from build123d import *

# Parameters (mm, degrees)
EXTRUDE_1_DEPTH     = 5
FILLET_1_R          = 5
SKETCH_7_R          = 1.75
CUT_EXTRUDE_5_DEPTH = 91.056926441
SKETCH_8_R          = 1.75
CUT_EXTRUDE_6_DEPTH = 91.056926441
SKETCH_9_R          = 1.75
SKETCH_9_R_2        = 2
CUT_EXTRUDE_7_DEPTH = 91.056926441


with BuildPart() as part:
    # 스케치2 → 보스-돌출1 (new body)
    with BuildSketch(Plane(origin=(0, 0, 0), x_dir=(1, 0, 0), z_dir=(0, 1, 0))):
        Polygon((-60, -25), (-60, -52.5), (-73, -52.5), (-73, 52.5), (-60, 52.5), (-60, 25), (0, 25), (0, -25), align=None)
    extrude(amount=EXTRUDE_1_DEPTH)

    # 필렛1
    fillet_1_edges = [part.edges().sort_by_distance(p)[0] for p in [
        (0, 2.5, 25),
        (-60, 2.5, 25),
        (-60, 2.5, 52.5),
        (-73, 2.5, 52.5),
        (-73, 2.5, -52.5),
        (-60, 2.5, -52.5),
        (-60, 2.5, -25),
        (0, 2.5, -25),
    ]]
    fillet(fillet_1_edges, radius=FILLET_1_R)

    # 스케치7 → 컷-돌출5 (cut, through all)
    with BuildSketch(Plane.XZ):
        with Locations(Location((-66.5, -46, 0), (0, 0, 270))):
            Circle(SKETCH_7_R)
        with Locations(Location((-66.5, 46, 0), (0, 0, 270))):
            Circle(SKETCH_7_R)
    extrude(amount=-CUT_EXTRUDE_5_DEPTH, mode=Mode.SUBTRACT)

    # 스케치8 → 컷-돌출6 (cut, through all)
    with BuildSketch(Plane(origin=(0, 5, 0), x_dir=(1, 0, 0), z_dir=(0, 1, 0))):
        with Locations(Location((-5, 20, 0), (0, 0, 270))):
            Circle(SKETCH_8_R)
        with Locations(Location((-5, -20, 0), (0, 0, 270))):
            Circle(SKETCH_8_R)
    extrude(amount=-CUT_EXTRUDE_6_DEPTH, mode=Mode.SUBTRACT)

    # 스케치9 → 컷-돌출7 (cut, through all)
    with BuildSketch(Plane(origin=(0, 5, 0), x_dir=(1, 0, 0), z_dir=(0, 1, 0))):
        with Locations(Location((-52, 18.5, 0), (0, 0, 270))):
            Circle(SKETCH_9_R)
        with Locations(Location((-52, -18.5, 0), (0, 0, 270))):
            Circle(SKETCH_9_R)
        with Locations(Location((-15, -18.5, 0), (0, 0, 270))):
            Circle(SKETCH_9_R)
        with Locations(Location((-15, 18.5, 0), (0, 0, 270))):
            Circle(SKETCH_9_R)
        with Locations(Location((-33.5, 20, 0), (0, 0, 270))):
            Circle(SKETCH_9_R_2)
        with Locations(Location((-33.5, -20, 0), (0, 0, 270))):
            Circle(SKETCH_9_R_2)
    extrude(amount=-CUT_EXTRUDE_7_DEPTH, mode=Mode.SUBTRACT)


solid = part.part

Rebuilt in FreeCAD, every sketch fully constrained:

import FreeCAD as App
import Part
import Sketcher
from FreeCAD import Vector
Q = App.Units.Quantity


def edges_at(feature, points):
    """Names of the edges that pass closest to the given points."""
    edges = feature.Shape.Edges
    near = lambda p: min(range(len(edges)), key=lambda i: edges[i].distToShape(Part.Vertex(*p))[0])
    return sorted({f"Edge{near(p) + 1}" for p in points})


def add_polygon(sketch, points):
    """Adds a closed chain of lines whose ends are joined by coincident constraints."""
    first, n = sketch.GeometryCount, len(points)
    for a, b in zip(points, points[1:] + points[:1]):
        sketch.addGeometry(Part.LineSegment(App.Vector(*a, 0), App.Vector(*b, 0)), False)
    for i in range(n):
        sketch.addConstraint(Sketcher.Constraint("Coincident", first + i, 2, first + (i + 1) % n, 1))

doc = App.newDocument("Part")
params = doc.addObject("Spreadsheet::Sheet", "Params")
for row, (alias, value) in enumerate([
    ("sketch1_width", "60 mm"),
    ("sketch1_width2", "13 mm"),
    ("sketch1_height", "50 mm"),
    ("sketch1_height2", "105 mm"),
    ("pad1_length", "5 mm"),
    ("fillet_radius", "5 mm"),
    ("sketch2_diameter", "3.5 mm"),
    ("sketch3_diameter", "3.5 mm"),
    ("sketch4_diameter", "4 mm"),
    ("sketch4_diameter2", "3.5 mm"),
], start=1):
    params.set(f"A{row}", alias)
    params.set(f"B{row}", "=" + value)
    params.setAlias(f"B{row}", alias)

body = doc.addObject("PartDesign::Body", "Body")

# Sketch on XZ plane
sketch1 = body.newObject("Sketcher::SketchObject", "Sketch")
sketch1.AttachmentSupport = (doc.getObject("XZ_Plane"), [""])
sketch1.MapMode = "FlatFace"
add_polygon(sketch1, [(-60, 52), (-60, 25), (0, 25), (0, -25), (-60, -25), (-60, -52), (-73, -52), (-73, 52)])  # lines 0-7
sketch1.addConstraint([
    Sketcher.Constraint("Vertical", 0),
    Sketcher.Constraint("Horizontal", 1),
    Sketcher.Constraint("Vertical", 2),
    Sketcher.Constraint("Horizontal", 3),
    Sketcher.Constraint("Vertical", 4),
    Sketcher.Constraint("Horizontal", 5),
    Sketcher.Constraint("Vertical", 6),
    Sketcher.Constraint("Horizontal", 7),
    Sketcher.Constraint("Symmetric", 1, 2, 2, 2, -1, 1),
    Sketcher.Constraint("Symmetric", 4, 2, 7, 2, -1),
    Sketcher.Constraint("DistanceX", 1, 1, 1, 2, Q("60 mm")),
    Sketcher.Constraint("DistanceX", 5, 2, 5, 1, Q("13 mm")),
    Sketcher.Constraint("DistanceY", 2, 2, 2, 1, Q("50 mm")),
    Sketcher.Constraint("DistanceY", 6, 1, 6, 2, Q("105 mm")),
])
sketch1.setExpression("Constraints[18]", "Params.sketch1_width")
sketch1.setExpression("Constraints[19]", "Params.sketch1_width2")
sketch1.setExpression("Constraints[20]", "Params.sketch1_height")
sketch1.setExpression("Constraints[21]", "Params.sketch1_height2")
pad1 = body.newObject("PartDesign::Pad", "Pad")
pad1.Profile = sketch1
pad1.setExpression("Length", "Params.pad1_length")
pad1.Reversed = True
doc.recompute()

fillet = body.newObject("PartDesign::Fillet", "Fillet")
fillet.Base = (pad1, edges_at(pad1, [
    (0, 2.5, 25),
    (-60, 2.5, 25),
    (-60, 2.5, 52.5),
    (-73, 2.5, 52.5),
    (-73, 2.5, -52.5),
    (-60, 2.5, -52.5),
    (-60, 2.5, -25),
    (0, 2.5, -25),
]))
fillet.setExpression("Radius", "Params.fillet_radius")

# Sketch on XZ plane
sketch2 = body.newObject("Sketcher::SketchObject", "Sketch001")
sketch2.AttachmentSupport = (doc.getObject("XZ_Plane"), [""])
sketch2.MapMode = "FlatFace"
sketch2.addGeometry([
    Part.Circle(Vector(-66.5, -46, 0), Vector(0, 0, 1), 1.8),
    Part.Circle(Vector(-66.5, 46, 0), Vector(0, 0, 1), 1.8),
], False)
sketch2.addConstraint([
    Sketcher.Constraint("Equal", 0, 1),
    Sketcher.Constraint("Symmetric", 0, 3, 1, 3, -1),
    Sketcher.Constraint("Diameter", 0, Q("3.5 mm")),
    Sketcher.Constraint("DistanceY", 0, 3, -1, 1, Q("46 mm")),
    Sketcher.Constraint("DistanceX", 0, 3, -1, 1, Q("66.5 mm")),
])
sketch2.setExpression("Constraints[2]", "Params.sketch2_diameter")
pocket1 = body.newObject("PartDesign::Pocket", "Pocket")
pocket1.Profile = sketch2
pocket1.Type = "ThroughAll"

# Sketch on XZ plane
sketch3 = body.newObject("Sketcher::SketchObject", "Sketch002")
sketch3.AttachmentSupport = (doc.getObject("XZ_Plane"), [""])
sketch3.MapMode = "FlatFace"
sketch3.AttachmentOffset = App.Placement(Vector(0, 0, -5), App.Rotation())
sketch3.addGeometry([
    Part.Circle(Vector(-5, -20, 0), Vector(0, 0, 1), 1.8),
    Part.Circle(Vector(-5, 20, 0), Vector(0, 0, 1), 1.8),
], False)
sketch3.addConstraint([
    Sketcher.Constraint("Equal", 0, 1),
    Sketcher.Constraint("Symmetric", 0, 3, 1, 3, -1),
    Sketcher.Constraint("Diameter", 0, Q("3.5 mm")),
    Sketcher.Constraint("DistanceX", 0, 3, -1, 1, Q("5 mm")),
    Sketcher.Constraint("DistanceY", 0, 3, -1, 1, Q("20 mm")),
])
sketch3.setExpression("Constraints[2]", "Params.sketch3_diameter")
pocket2 = body.newObject("PartDesign::Pocket", "Pocket001")
pocket2.Profile = sketch3
pocket2.Type = "ThroughAll"
pocket2.Reversed = True

# Sketch on XZ plane
sketch4 = body.newObject("Sketcher::SketchObject", "Sketch003")
sketch4.AttachmentSupport = (doc.getObject("XZ_Plane"), [""])
sketch4.MapMode = "FlatFace"
sketch4.AttachmentOffset = App.Placement(Vector(0, 0, -5), App.Rotation())
sketch4.addGeometry([
    Part.Circle(Vector(-52, -18.5, 0), Vector(0, 0, 1), 1.8),  # 0
    Part.Circle(Vector(-52, 18.5, 0), Vector(0, 0, 1), 1.8),  # 1
    Part.Circle(Vector(-15, 18.5, 0), Vector(0, 0, 1), 1.8),  # 2
    Part.Circle(Vector(-15, -18.5, 0), Vector(0, 0, 1), 1.8),  # 3
    Part.Circle(Vector(-33.5, -20, 0), Vector(0, 0, 1), 2),  # 4
    Part.Circle(Vector(-33.5, 20, 0), Vector(0, 0, 1), 2),  # 5
], False)
sketch4.addConstraint([
    Sketcher.Constraint("Equal", 0, 1),
    Sketcher.Constraint("Equal", 1, 2),
    Sketcher.Constraint("Equal", 2, 3),
    Sketcher.Constraint("Equal", 4, 5),
    Sketcher.Constraint("Symmetric", 0, 3, 1, 3, -1),
    Sketcher.Constraint("Symmetric", 2, 3, 3, 3, -1),
    Sketcher.Constraint("Symmetric", 4, 3, 5, 3, -1),
    Sketcher.Constraint("Horizontal", 1, 3, 2, 3),
    Sketcher.Constraint("Diameter", 4, Q("4 mm")),
    Sketcher.Constraint("Diameter", 0, Q("3.5 mm")),
    Sketcher.Constraint("DistanceX", 0, 3, -1, 1, Q("52 mm")),
    Sketcher.Constraint("DistanceX", 2, 3, -1, 1, Q("15 mm")),
    Sketcher.Constraint("DistanceY", 4, 3, -1, 1, Q("20 mm")),
    Sketcher.Constraint("DistanceY", 0, 3, 1, 3, Q("37 mm")),
    Sketcher.Constraint("DistanceX", 4, 3, -1, 1, Q("33.5 mm")),
])
sketch4.setExpression("Constraints[8]", "Params.sketch4_diameter")
sketch4.setExpression("Constraints[9]", "Params.sketch4_diameter2")
pocket3 = body.newObject("PartDesign::Pocket", "Pocket002")
pocket3.Profile = sketch4
pocket3.Type = "ThroughAll"
pocket3.Reversed = True

doc.recompute()
